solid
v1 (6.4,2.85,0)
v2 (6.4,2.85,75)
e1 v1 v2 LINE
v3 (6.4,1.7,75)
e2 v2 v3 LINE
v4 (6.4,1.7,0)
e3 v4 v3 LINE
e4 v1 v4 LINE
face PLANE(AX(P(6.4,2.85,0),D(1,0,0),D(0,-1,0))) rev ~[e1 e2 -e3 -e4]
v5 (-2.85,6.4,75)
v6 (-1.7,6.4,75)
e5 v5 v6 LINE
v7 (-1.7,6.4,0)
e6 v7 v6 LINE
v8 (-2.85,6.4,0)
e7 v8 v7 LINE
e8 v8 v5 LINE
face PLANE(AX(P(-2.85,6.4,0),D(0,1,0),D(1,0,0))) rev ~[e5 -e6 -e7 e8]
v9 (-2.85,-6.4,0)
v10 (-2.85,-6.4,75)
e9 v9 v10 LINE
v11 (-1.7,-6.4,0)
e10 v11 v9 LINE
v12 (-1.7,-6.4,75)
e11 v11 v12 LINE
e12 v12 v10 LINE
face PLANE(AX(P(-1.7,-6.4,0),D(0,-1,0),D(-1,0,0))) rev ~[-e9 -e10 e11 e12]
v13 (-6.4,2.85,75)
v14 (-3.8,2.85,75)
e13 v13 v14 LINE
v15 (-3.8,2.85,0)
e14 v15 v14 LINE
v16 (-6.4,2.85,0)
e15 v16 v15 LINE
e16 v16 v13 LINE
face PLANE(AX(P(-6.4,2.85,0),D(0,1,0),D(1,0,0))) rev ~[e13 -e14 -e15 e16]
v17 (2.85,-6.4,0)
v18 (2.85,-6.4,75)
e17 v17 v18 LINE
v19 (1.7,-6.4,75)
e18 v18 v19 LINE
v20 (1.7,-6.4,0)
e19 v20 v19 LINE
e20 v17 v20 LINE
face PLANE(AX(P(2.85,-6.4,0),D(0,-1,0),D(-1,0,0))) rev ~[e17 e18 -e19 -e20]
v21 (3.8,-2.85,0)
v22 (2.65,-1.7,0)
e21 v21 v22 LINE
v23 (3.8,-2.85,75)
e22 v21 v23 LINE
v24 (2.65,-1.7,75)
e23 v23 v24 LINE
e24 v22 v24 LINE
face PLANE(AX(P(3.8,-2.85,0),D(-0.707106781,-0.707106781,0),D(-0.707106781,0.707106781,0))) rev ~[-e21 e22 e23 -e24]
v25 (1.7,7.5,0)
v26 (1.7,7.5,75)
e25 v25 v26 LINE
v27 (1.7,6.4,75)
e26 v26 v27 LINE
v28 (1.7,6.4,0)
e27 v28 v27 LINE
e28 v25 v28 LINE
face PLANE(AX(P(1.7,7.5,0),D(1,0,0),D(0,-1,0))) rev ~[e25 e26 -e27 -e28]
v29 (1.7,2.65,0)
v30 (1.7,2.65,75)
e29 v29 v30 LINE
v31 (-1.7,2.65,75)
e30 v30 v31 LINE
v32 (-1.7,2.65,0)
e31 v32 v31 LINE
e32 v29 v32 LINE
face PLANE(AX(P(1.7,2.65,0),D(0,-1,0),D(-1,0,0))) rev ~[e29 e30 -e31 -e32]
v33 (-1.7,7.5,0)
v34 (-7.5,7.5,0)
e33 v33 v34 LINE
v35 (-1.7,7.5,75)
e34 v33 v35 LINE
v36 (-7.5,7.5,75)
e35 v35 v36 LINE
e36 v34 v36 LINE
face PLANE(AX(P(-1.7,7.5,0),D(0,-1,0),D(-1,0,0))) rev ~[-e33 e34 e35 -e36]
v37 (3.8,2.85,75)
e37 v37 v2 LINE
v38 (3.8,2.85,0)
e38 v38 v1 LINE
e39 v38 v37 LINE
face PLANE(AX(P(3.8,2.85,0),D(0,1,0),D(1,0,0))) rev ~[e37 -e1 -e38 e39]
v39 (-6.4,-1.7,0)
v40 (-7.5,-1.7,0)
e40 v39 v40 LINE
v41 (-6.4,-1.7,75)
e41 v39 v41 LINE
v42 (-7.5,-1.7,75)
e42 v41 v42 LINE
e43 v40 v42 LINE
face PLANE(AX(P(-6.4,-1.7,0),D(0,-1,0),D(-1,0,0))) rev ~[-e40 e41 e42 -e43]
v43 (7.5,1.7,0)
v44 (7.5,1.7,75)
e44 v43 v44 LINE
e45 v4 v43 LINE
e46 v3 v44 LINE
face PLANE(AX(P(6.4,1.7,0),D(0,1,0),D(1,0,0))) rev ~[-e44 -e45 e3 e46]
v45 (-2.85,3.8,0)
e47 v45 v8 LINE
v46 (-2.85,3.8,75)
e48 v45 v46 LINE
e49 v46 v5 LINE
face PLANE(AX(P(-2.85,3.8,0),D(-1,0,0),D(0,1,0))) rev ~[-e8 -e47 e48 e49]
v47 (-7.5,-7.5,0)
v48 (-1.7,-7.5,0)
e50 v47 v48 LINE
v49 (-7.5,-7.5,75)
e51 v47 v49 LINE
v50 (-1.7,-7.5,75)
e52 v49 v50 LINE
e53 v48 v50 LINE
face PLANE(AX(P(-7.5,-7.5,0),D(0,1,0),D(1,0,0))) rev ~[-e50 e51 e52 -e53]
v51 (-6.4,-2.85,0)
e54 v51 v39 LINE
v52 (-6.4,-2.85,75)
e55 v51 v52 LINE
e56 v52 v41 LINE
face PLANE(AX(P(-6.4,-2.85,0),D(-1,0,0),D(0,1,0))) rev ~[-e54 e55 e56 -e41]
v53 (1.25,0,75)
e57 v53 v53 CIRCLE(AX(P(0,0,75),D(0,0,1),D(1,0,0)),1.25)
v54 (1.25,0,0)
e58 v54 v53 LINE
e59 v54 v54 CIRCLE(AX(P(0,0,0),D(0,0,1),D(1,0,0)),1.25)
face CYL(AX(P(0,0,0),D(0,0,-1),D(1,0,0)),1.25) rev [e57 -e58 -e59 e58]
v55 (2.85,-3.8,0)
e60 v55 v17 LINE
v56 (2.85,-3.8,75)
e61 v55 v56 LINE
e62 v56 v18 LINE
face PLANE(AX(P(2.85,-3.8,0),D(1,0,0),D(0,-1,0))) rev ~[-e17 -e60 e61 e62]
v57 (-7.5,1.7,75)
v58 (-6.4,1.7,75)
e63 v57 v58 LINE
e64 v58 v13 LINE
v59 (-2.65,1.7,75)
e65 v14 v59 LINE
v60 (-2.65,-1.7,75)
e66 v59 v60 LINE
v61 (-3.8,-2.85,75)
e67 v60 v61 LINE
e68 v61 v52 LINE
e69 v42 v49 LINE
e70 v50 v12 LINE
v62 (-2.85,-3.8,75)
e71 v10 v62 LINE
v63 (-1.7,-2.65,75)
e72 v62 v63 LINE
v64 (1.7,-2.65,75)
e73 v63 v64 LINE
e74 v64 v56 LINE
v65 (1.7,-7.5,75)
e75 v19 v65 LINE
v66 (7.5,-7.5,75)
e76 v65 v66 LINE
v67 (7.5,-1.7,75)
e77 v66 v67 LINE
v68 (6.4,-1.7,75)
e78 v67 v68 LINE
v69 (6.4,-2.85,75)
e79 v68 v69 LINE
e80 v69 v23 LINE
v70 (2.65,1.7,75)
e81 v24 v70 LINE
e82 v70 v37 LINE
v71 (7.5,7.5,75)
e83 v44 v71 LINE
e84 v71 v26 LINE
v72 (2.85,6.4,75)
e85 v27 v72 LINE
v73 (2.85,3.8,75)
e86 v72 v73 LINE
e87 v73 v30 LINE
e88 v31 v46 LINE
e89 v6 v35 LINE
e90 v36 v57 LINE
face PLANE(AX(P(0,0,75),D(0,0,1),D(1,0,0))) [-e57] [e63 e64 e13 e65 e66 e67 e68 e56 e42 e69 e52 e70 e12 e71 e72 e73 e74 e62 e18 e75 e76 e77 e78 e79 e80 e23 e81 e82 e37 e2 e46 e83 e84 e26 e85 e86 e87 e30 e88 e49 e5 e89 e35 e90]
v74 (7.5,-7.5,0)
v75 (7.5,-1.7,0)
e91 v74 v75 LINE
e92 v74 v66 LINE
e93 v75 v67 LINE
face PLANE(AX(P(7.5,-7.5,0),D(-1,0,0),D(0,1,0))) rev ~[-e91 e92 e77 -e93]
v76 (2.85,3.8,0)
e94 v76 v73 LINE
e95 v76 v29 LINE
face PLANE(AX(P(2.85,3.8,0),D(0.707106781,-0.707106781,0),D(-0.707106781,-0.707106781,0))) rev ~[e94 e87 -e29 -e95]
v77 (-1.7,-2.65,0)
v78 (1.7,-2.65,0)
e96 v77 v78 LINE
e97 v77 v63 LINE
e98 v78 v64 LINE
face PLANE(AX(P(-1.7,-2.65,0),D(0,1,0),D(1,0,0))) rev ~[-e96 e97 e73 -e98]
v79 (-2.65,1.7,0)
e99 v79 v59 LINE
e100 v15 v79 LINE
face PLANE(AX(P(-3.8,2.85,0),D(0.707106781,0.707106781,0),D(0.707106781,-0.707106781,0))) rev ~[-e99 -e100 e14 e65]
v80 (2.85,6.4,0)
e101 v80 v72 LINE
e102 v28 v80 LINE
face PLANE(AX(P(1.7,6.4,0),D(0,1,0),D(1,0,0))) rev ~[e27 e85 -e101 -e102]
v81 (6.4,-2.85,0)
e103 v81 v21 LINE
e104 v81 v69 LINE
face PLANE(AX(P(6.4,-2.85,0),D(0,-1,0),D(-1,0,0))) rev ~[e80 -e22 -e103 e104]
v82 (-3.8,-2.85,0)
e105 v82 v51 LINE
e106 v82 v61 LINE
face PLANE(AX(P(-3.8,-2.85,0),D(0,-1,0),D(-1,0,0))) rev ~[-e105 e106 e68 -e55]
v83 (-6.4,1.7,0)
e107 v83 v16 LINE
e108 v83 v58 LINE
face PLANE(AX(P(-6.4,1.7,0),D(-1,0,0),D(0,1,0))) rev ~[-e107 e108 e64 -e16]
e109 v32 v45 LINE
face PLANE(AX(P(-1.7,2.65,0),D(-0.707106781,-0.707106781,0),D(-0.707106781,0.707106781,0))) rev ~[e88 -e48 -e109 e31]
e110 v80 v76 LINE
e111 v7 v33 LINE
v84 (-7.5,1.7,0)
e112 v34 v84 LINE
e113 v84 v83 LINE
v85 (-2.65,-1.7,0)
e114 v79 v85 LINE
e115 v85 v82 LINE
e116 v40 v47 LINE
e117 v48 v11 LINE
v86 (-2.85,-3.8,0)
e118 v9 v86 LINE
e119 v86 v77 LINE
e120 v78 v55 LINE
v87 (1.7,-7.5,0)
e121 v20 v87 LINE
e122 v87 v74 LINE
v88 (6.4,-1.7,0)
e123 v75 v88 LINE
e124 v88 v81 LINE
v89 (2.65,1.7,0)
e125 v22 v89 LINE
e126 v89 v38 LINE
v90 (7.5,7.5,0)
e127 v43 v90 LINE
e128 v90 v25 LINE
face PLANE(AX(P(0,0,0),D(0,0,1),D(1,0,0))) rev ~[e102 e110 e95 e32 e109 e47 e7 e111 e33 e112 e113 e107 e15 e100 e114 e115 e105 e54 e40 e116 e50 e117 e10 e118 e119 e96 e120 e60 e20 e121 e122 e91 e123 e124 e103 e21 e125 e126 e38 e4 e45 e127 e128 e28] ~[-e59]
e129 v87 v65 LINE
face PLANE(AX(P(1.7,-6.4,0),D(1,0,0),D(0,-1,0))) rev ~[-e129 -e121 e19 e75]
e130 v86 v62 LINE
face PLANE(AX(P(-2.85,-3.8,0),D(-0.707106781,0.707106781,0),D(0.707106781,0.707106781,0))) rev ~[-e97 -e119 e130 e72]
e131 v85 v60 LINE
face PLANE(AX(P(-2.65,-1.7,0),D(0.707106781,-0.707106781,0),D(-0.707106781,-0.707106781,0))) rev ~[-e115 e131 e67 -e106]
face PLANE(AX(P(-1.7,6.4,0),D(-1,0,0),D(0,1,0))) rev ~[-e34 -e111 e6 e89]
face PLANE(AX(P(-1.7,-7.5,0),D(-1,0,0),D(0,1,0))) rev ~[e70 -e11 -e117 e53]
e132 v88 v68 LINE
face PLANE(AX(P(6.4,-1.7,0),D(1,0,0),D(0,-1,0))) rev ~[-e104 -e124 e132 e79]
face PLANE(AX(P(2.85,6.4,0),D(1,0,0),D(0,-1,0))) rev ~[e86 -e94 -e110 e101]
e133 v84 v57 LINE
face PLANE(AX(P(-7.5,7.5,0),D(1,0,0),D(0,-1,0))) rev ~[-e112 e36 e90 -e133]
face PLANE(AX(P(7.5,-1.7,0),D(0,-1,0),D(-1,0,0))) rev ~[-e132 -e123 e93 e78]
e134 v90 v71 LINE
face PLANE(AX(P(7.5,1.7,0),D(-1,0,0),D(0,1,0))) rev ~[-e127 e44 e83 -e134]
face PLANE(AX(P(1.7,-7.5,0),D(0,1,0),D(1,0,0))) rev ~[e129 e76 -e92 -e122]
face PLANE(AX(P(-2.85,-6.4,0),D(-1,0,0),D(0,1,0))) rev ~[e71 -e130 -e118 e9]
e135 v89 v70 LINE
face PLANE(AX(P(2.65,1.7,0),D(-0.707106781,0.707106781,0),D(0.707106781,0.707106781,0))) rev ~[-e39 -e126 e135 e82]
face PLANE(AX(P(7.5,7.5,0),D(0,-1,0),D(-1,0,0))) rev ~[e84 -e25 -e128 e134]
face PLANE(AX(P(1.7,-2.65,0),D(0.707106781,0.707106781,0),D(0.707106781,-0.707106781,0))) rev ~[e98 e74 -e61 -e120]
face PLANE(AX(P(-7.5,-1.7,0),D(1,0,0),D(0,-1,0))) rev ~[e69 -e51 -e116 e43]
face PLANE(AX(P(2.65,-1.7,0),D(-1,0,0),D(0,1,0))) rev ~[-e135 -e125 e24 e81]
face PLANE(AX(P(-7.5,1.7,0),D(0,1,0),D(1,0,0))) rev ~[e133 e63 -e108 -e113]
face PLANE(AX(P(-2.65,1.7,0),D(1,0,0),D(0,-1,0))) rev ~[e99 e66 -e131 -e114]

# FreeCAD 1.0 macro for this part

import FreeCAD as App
import Part
import Sketcher
Q = App.Units.Quantity


def add_polygon(sketch, points):
    """Adds a closed chain of lines whose ends are joined by coincident constraints."""
    first, n = sketch.GeometryCount, len(points)
    for a, b in zip(points, points[1:] + points[:1]):
        sketch.addGeometry(Part.LineSegment(App.Vector(*a, 0), App.Vector(*b, 0)), False)
    for i in range(n):
        sketch.addConstraint(Sketcher.Constraint("Coincident", first + i, 2, first + (i + 1) % n, 1))

doc = App.newDocument("Part")
body = doc.addObject("PartDesign::Body", "Body")

# Sketch on XY plane
sketch1 = body.newObject("Sketcher::SketchObject", "Sketch")
sketch1.AttachmentSupport = (doc.getObject("XY_Plane"), [""])
sketch1.MapMode = "FlatFace"
add_polygon(sketch1, [(1.7, 2.65), (-1.7, 2.65), (-2.85, 3.8), (-2.85, 6.4), (-1.7, 6.4), (-1.7, 7.5), (-7.5, 7.5), (-7.5, 1.7), (-6.4, 1.7), (-6.4, 2.85), (-3.8, 2.85), (-2.65, 1.7), (-2.65, -1.7), (-3.8, -2.85), (-6.4, -2.85), (-6.4, -1.7), (-7.5, -1.7), (-7.5, -7.5), (-1.7, -7.5), (-1.7, -6.4), (-2.85, -6.4), (-2.85, -3.8), (-1.7, -2.65), (1.7, -2.65), (2.85, -3.8), (2.85, -6.4), (1.7, -6.4), (1.7, -7.5), (7.5, -7.5), (7.5, -1.7), (6.4, -1.7), (6.4, -2.85), (3.8, -2.85), (2.65, -1.7), (2.65, 1.7), (3.8, 2.85), (6.4, 2.85), (6.4, 1.7), (7.5, 1.7), (7.5, 7.5), (1.7, 7.5), (1.7, 6.4), (2.85, 6.4), (2.85, 3.8)])  # lines 0-43
sketch1.addGeometry(Part.Circle(App.Vector(0, 0, 0), App.Vector(0, 0, 1), 1.25), False)  # 44
sketch1.addConstraint([
    Sketcher.Constraint("Horizontal", 0),
    Sketcher.Constraint("Vertical", 2),
    Sketcher.Constraint("Horizontal", 3),
    Sketcher.Constraint("Vertical", 4),
    Sketcher.Constraint("Horizontal", 5),
    Sketcher.Constraint("Vertical", 6),
    Sketcher.Constraint("Horizontal", 7),
    Sketcher.Constraint("Vertical", 8),
    Sketcher.Constraint("Horizontal", 9),
    Sketcher.Constraint("Vertical", 11),
    Sketcher.Constraint("Horizontal", 13),
    Sketcher.Constraint("Vertical", 14),
    Sketcher.Constraint("Horizontal", 15),
    Sketcher.Constraint("Vertical", 16),
    Sketcher.Constraint("Horizontal", 17),
    Sketcher.Constraint("Vertical", 18),
    Sketcher.Constraint("Horizontal", 19),
    Sketcher.Constraint("Vertical", 20),
    Sketcher.Constraint("Horizontal", 22),
    Sketcher.Constraint("Vertical", 24),
    Sketcher.Constraint("Horizontal", 25),
    Sketcher.Constraint("Vertical", 26),
    Sketcher.Constraint("Horizontal", 27),
    Sketcher.Constraint("Vertical", 28),
    Sketcher.Constraint("Horizontal", 29),
    Sketcher.Constraint("Vertical", 30),
    Sketcher.Constraint("Horizontal", 31),
    Sketcher.Constraint("Vertical", 33),
    Sketcher.Constraint("Horizontal", 35),
    Sketcher.Constraint("Vertical", 36),
    Sketcher.Constraint("Horizontal", 37),
    Sketcher.Constraint("Vertical", 38),
    Sketcher.Constraint("Horizontal", 39),
    Sketcher.Constraint("Vertical", 40),
    Sketcher.Constraint("Horizontal", 41),
    Sketcher.Constraint("Vertical", 42),
    Sketcher.Constraint("Coincident", 44, 3, -1, 1),
    Sketcher.Constraint("Symmetric", 0, 2, 22, 2, -1, 1),
    Sketcher.Constraint("Symmetric", 1, 2, 23, 2, -1, 1),
    Sketcher.Constraint("Symmetric", 3, 2, 25, 2, -1, 1),
    Sketcher.Constraint("Symmetric", 5, 2, 27, 2, -1, 1),
    Sketcher.Constraint("Symmetric", 7, 2, 29, 2, -1, 1),
    Sketcher.Constraint("Symmetric", 9, 2, 31, 2, -1, 1),
    Sketcher.Constraint("Symmetric", 10, 2, 32, 2, -1, 1),
    Sketcher.Constraint("Symmetric", 12, 2, 34, 2, -1, 1),
    Sketcher.Constraint("Symmetric", 14, 2, 36, 2, -1, 1),
    Sketcher.Constraint("Symmetric", 16, 2, 38, 2, -1, 1),
    Sketcher.Constraint("Symmetric", 18, 2, 40, 2, -1, 1),
    Sketcher.Constraint("Symmetric", 20, 2, 42, 2, -1, 1),
    Sketcher.Constraint("Symmetric", 20, 2, 23, 2, -2),
    Sketcher.Constraint("Symmetric", 18, 2, 25, 2, -2),
    Sketcher.Constraint("Symmetric", 16, 2, 27, 2, -2),
    Sketcher.Constraint("Symmetric", 14, 2, 29, 2, -2),
    Sketcher.Constraint("Symmetric", 12, 2, 31, 2, -2),
    Sketcher.Constraint("Parallel", 1, 10),
    Sketcher.Constraint("Perpendicular", 10, 12),
    Sketcher.Constraint("Parallel", 12, 21),
    Sketcher.Constraint("Perpendicular", 32, 34),
    Sketcher.Constraint("Parallel", 34, 43),
    Sketcher.Constraint("Horizontal", 7, 2, 10, 2),
    Sketcher.Constraint("Horizontal", 11, 2, 14, 2),
    Sketcher.Constraint("Vertical", 0, 2, 3, 2),
    Sketcher.Constraint("Equal", 35, 2),
    Sketcher.Constraint("Equal", 37, 4),
    Sketcher.Constraint("Equal", 39, 6),
    Sketcher.Constraint("Equal", 41, 8),
    Sketcher.Constraint("Equal", 22, 11),
    Sketcher.Constraint("Diameter", 44, Q("2.5 mm")),
    Sketcher.Constraint("DistanceX", 0, 2, 0, 1, Q("3.4 mm")),
    Sketcher.Constraint("DistanceX", 5, 2, 5, 1, Q("5.8 mm")),
    Sketcher.Constraint("DistanceX", 7, 1, 7, 2, Q("1.1 mm")),
    Sketcher.Constraint("DistanceX", 9, 1, 9, 2, Q("2.6 mm")),
    Sketcher.Constraint("DistanceX", 3, 1, 3, 2, Q("1.15 mm")),
])
pad1 = body.newObject("PartDesign::Pad", "Pad")
pad1.Profile = sketch1
pad1.Length = 75

doc.recompute()
